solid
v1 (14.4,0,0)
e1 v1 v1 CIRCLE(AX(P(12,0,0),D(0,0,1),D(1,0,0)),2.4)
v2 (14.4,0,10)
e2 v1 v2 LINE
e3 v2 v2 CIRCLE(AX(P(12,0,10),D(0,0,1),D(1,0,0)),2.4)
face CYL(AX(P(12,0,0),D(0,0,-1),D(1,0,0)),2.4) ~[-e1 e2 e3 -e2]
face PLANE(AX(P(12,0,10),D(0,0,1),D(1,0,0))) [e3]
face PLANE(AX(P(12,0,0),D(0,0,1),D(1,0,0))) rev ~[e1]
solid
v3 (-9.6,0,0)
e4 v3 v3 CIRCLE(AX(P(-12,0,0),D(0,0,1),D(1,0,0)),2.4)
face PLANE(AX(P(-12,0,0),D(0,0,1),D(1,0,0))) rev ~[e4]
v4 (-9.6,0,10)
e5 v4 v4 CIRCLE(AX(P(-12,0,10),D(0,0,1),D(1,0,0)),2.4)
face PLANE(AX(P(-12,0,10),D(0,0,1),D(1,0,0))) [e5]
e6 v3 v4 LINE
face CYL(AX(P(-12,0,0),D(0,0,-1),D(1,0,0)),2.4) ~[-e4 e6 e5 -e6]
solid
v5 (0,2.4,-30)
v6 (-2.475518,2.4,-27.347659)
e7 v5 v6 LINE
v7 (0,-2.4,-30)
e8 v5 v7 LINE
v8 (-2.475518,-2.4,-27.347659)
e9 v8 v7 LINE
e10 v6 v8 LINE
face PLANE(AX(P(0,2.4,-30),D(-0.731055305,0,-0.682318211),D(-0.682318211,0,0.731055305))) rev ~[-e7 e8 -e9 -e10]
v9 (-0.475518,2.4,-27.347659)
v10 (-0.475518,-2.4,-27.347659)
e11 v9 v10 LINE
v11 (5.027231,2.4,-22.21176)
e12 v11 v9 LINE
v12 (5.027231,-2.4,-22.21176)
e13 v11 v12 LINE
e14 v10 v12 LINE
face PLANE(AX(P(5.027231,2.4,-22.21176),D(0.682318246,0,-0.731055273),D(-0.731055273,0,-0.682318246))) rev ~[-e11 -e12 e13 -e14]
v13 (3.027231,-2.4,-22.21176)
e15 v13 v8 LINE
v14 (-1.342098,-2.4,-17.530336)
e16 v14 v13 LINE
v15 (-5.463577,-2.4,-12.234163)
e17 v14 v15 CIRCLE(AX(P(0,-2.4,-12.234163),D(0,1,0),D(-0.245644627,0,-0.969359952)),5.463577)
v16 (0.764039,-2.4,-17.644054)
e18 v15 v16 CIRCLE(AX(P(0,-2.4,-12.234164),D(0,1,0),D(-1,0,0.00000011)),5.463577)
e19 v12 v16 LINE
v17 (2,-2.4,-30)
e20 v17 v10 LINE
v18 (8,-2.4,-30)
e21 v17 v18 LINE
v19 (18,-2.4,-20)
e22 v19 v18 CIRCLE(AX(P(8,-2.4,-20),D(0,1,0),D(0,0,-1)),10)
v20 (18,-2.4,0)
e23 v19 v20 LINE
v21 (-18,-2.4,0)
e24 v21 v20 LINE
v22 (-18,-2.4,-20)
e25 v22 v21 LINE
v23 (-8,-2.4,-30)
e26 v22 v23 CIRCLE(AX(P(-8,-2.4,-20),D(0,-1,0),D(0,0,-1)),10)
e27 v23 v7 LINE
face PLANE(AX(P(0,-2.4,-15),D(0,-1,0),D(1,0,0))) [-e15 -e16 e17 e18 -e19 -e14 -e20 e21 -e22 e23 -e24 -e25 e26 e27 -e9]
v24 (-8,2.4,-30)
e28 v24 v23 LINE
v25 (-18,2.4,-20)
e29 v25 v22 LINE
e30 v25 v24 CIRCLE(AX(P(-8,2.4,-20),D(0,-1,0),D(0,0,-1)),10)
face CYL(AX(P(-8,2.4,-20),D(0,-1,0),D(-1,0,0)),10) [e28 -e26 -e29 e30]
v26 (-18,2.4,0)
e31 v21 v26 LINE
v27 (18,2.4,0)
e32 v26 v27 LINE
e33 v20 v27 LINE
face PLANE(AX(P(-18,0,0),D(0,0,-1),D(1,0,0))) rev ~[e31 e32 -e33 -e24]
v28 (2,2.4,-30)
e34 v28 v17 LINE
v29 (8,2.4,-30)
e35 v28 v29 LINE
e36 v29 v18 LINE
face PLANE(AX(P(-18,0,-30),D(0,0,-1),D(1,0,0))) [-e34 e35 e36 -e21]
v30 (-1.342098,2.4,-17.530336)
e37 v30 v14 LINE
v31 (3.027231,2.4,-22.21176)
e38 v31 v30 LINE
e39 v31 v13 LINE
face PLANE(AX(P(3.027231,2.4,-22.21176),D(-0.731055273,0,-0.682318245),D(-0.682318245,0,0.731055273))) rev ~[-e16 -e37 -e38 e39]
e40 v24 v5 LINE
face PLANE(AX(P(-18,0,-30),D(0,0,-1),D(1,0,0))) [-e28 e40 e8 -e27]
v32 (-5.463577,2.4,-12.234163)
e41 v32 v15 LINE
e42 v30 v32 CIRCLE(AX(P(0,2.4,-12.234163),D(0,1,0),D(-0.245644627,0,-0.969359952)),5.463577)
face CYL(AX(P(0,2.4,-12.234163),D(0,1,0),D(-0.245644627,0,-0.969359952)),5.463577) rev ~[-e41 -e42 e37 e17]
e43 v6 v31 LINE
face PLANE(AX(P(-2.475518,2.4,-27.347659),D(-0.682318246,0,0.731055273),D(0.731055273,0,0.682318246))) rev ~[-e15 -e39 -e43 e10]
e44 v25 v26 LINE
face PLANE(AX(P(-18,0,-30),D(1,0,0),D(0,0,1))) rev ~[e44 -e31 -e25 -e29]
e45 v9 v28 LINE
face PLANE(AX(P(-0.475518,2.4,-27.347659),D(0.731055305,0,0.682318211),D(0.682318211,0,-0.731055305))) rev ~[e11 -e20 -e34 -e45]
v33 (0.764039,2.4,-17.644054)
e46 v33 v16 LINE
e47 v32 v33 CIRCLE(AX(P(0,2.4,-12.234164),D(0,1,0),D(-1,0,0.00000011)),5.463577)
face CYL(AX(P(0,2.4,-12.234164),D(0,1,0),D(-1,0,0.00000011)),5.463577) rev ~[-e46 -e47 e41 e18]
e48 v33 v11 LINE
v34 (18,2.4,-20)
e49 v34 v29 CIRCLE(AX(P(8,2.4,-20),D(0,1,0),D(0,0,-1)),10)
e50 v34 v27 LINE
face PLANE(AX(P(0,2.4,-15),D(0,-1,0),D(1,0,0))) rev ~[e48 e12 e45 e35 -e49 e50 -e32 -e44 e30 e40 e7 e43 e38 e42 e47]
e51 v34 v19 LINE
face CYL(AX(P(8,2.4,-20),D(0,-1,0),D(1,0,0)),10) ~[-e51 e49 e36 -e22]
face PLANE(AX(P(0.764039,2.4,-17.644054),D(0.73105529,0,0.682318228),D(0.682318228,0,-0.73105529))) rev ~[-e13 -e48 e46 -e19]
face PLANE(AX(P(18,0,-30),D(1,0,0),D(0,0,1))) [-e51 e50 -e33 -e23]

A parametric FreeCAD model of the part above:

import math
import FreeCAD as App
import Part
import Sketcher

V = App.Vector


def edges_at(feature, points):
    """Names of the edges that pass closest to the given points."""
    edges = feature.Shape.Edges
    near = lambda p: min(range(len(edges)), key=lambda i: edges[i].distToShape(Part.Vertex(*p))[0])
    return sorted({f"Edge{near(p) + 1}" for p in points})


def add_polygon(sketch, points):
    """Adds a closed chain of lines whose ends are joined by coincident constraints."""
    first, n = sketch.GeometryCount, len(points)
    for a, b in zip(points, points[1:] + points[:1]):
        sketch.addGeometry(Part.LineSegment(App.Vector(*a, 0), App.Vector(*b, 0)), False)
    for i in range(n):
        sketch.addConstraint(Sketcher.Constraint("Coincident", first + i, 2, first + (i + 1) % n, 1))

doc = App.newDocument("Part")
body = doc.addObject("PartDesign::Body", "Body")
body.AllowCompound = True

sketch1 = doc.addObject("Sketcher::SketchObject", "Sketch")
body.addObject(sketch1)
sketch1.AttachmentSupport = (doc.XY_Plane, [""])
sketch1.MapMode = "FlatFace"
sketch1.addGeometry([
    Part.Circle(V(-12, 0, 0), V(0, 0, 1), 2.4),
    Part.Circle(V(12, 0, 0), V(0, 0, 1), 2.4),
], False)
sketch1.addConstraint([
    Sketcher.Constraint("Equal", 0, 1),
    Sketcher.Constraint("Symmetric", 0, 3, 1, 3, -1, 1),
    Sketcher.Constraint("PointOnObject", 0, 3, -1),
    Sketcher.Constraint("Diameter", 0, 4.8),
    Sketcher.Constraint("DistanceX", 0, 3, -1, 1, 12.0),
])
pad1 = doc.addObject("PartDesign::Pad", "Pad")
body.addObject(pad1)
pad1.Profile = sketch1
pad1.Length = 10
body2 = doc.addObject("PartDesign::Body", "Body001")

sketch2 = doc.addObject("Sketcher::SketchObject", "Sketch001")
body2.addObject(sketch2)
sketch2.AttachmentSupport = (doc.getObject("XZ_Plane001"), [""])
sketch2.MapMode = "FlatFace"
add_polygon(sketch2, [(-18, 0), (-18, -30), (18, -30), (18, 0)])
sketch2.addConstraint([
    Sketcher.Constraint("Vertical", 0),
    Sketcher.Constraint("Horizontal", 1),
    Sketcher.Constraint("Vertical", 2),
    Sketcher.Constraint("Horizontal", 3),
    Sketcher.Constraint("Symmetric", 2, 2, 3, 2, -1, 1),
    Sketcher.Constraint("DistanceX", 1, 1, 1, 2, 36.0),
    Sketcher.Constraint("DistanceY", 0, 2, 0, 1, 30.0),
])
pad2 = doc.addObject("PartDesign::Pad", "Pad001")
body2.addObject(pad2)
pad2.Profile = sketch2
pad2.Length = 4.8
pad2.Midplane = True
doc.recompute()

fillet = doc.addObject("PartDesign::Fillet", "Fillet")
body2.addObject(fillet)
fillet.Base = (pad2, edges_at(pad2, [(18, 0, -30), (-18, 0, -30)]))
fillet.Radius = 10

sketch3 = doc.addObject("Sketcher::SketchObject", "Sketch002")
body2.addObject(sketch3)
sketch3.AttachmentSupport = (doc.getObject("XZ_Plane001"), [""])
sketch3.MapMode = "FlatFace"
sketch3.AttachmentOffset = App.Placement(V(0, 0, -2.4), App.Rotation())
sketch3.addGeometry([
    Part.ArcOfCircle(Part.Circle(V(0, -12.2, 0), V(0, 0, 1), 5.5), math.radians(-180), math.radians(-104)),
    Part.ArcOfCircle(Part.Circle(V(0, -12.2, 0), V(0, 0, 1), 5.5), math.radians(-82), math.radians(180)),
    Part.LineSegment(V(0.8, -17.6, 0), V(5, -22.2, 0)),
    Part.LineSegment(V(5, -22.2, 0), V(-0.5, -27.3, 0)),
    Part.LineSegment(V(-0.5, -27.3, 0), V(2, -30, 0)),
    Part.LineSegment(V(2, -30, 0), V(0, -30, 0)),
    Part.LineSegment(V(0, -30, 0), V(-2.5, -27.3, 0)),
    Part.LineSegment(V(-2.5, -27.3, 0), V(3, -22.2, 0)),
    Part.LineSegment(V(3, -22.2, 0), V(-1.3, -17.5, 0)),
], False)
sketch3.addConstraint([
    Sketcher.Constraint("Tangent", 0, 1, 1, 2),
    Sketcher.Constraint("Coincident", 1, 1, 2, 1),
    Sketcher.Constraint("Coincident", 2, 2, 3, 1),
    Sketcher.Constraint("Coincident", 3, 2, 4, 1),
    Sketcher.Constraint("Coincident", 4, 2, 5, 1),
    Sketcher.Constraint("Coincident", 5, 2, 6, 1),
    Sketcher.Constraint("Coincident", 6, 2, 7, 1),
    Sketcher.Constraint("Coincident", 7, 2, 8, 1),
    Sketcher.Constraint("Coincident", 8, 2, 0, 2),
    Sketcher.Constraint("Horizontal", 5),
    Sketcher.Constraint("Equal", 0, 1),
    Sketcher.Constraint("PointOnObject", 0, 3, -2),
    Sketcher.Constraint("PointOnObject", 5, 2, -2),
    Sketcher.Constraint("Perpendicular", 2, 3),
    Sketcher.Constraint("Perpendicular", 3, 4),
    Sketcher.Constraint("Parallel", 4, 6),
    Sketcher.Constraint("Perpendicular", 6, 7),
    Sketcher.Constraint("Perpendicular", 7, 8),
    Sketcher.Constraint("Horizontal", 1, 3, 0, 1),
    Sketcher.Constraint("Horizontal", 3, 2, 6, 2),
    Sketcher.Constraint("Horizontal", 2, 2, 7, 2),
    Sketcher.Constraint("DistanceX", 5, 2, 5, 1, 2.0),
    Sketcher.Constraint("DistanceY", 4, 2, -1, 1, 30.0),
    Sketcher.Constraint("Radius", 0, 5.463577),
    Sketcher.Constraint("Distance", 2, 6.248099),
    Sketcher.Constraint("Distance", 4, 3.628099),
    Sketcher.Constraint("DistanceY", 3, 2, 2, 2, 5.135899),
    Sketcher.Constraint("DistanceX", 8, 2, 0, 3, 1.342098),
])
pocket1 = doc.addObject("PartDesign::Pocket", "Pocket")
body2.addObject(pocket1)
pocket1.Profile = sketch3
pocket1.Length = 25
pocket1.Reversed = True

doc.recompute()
